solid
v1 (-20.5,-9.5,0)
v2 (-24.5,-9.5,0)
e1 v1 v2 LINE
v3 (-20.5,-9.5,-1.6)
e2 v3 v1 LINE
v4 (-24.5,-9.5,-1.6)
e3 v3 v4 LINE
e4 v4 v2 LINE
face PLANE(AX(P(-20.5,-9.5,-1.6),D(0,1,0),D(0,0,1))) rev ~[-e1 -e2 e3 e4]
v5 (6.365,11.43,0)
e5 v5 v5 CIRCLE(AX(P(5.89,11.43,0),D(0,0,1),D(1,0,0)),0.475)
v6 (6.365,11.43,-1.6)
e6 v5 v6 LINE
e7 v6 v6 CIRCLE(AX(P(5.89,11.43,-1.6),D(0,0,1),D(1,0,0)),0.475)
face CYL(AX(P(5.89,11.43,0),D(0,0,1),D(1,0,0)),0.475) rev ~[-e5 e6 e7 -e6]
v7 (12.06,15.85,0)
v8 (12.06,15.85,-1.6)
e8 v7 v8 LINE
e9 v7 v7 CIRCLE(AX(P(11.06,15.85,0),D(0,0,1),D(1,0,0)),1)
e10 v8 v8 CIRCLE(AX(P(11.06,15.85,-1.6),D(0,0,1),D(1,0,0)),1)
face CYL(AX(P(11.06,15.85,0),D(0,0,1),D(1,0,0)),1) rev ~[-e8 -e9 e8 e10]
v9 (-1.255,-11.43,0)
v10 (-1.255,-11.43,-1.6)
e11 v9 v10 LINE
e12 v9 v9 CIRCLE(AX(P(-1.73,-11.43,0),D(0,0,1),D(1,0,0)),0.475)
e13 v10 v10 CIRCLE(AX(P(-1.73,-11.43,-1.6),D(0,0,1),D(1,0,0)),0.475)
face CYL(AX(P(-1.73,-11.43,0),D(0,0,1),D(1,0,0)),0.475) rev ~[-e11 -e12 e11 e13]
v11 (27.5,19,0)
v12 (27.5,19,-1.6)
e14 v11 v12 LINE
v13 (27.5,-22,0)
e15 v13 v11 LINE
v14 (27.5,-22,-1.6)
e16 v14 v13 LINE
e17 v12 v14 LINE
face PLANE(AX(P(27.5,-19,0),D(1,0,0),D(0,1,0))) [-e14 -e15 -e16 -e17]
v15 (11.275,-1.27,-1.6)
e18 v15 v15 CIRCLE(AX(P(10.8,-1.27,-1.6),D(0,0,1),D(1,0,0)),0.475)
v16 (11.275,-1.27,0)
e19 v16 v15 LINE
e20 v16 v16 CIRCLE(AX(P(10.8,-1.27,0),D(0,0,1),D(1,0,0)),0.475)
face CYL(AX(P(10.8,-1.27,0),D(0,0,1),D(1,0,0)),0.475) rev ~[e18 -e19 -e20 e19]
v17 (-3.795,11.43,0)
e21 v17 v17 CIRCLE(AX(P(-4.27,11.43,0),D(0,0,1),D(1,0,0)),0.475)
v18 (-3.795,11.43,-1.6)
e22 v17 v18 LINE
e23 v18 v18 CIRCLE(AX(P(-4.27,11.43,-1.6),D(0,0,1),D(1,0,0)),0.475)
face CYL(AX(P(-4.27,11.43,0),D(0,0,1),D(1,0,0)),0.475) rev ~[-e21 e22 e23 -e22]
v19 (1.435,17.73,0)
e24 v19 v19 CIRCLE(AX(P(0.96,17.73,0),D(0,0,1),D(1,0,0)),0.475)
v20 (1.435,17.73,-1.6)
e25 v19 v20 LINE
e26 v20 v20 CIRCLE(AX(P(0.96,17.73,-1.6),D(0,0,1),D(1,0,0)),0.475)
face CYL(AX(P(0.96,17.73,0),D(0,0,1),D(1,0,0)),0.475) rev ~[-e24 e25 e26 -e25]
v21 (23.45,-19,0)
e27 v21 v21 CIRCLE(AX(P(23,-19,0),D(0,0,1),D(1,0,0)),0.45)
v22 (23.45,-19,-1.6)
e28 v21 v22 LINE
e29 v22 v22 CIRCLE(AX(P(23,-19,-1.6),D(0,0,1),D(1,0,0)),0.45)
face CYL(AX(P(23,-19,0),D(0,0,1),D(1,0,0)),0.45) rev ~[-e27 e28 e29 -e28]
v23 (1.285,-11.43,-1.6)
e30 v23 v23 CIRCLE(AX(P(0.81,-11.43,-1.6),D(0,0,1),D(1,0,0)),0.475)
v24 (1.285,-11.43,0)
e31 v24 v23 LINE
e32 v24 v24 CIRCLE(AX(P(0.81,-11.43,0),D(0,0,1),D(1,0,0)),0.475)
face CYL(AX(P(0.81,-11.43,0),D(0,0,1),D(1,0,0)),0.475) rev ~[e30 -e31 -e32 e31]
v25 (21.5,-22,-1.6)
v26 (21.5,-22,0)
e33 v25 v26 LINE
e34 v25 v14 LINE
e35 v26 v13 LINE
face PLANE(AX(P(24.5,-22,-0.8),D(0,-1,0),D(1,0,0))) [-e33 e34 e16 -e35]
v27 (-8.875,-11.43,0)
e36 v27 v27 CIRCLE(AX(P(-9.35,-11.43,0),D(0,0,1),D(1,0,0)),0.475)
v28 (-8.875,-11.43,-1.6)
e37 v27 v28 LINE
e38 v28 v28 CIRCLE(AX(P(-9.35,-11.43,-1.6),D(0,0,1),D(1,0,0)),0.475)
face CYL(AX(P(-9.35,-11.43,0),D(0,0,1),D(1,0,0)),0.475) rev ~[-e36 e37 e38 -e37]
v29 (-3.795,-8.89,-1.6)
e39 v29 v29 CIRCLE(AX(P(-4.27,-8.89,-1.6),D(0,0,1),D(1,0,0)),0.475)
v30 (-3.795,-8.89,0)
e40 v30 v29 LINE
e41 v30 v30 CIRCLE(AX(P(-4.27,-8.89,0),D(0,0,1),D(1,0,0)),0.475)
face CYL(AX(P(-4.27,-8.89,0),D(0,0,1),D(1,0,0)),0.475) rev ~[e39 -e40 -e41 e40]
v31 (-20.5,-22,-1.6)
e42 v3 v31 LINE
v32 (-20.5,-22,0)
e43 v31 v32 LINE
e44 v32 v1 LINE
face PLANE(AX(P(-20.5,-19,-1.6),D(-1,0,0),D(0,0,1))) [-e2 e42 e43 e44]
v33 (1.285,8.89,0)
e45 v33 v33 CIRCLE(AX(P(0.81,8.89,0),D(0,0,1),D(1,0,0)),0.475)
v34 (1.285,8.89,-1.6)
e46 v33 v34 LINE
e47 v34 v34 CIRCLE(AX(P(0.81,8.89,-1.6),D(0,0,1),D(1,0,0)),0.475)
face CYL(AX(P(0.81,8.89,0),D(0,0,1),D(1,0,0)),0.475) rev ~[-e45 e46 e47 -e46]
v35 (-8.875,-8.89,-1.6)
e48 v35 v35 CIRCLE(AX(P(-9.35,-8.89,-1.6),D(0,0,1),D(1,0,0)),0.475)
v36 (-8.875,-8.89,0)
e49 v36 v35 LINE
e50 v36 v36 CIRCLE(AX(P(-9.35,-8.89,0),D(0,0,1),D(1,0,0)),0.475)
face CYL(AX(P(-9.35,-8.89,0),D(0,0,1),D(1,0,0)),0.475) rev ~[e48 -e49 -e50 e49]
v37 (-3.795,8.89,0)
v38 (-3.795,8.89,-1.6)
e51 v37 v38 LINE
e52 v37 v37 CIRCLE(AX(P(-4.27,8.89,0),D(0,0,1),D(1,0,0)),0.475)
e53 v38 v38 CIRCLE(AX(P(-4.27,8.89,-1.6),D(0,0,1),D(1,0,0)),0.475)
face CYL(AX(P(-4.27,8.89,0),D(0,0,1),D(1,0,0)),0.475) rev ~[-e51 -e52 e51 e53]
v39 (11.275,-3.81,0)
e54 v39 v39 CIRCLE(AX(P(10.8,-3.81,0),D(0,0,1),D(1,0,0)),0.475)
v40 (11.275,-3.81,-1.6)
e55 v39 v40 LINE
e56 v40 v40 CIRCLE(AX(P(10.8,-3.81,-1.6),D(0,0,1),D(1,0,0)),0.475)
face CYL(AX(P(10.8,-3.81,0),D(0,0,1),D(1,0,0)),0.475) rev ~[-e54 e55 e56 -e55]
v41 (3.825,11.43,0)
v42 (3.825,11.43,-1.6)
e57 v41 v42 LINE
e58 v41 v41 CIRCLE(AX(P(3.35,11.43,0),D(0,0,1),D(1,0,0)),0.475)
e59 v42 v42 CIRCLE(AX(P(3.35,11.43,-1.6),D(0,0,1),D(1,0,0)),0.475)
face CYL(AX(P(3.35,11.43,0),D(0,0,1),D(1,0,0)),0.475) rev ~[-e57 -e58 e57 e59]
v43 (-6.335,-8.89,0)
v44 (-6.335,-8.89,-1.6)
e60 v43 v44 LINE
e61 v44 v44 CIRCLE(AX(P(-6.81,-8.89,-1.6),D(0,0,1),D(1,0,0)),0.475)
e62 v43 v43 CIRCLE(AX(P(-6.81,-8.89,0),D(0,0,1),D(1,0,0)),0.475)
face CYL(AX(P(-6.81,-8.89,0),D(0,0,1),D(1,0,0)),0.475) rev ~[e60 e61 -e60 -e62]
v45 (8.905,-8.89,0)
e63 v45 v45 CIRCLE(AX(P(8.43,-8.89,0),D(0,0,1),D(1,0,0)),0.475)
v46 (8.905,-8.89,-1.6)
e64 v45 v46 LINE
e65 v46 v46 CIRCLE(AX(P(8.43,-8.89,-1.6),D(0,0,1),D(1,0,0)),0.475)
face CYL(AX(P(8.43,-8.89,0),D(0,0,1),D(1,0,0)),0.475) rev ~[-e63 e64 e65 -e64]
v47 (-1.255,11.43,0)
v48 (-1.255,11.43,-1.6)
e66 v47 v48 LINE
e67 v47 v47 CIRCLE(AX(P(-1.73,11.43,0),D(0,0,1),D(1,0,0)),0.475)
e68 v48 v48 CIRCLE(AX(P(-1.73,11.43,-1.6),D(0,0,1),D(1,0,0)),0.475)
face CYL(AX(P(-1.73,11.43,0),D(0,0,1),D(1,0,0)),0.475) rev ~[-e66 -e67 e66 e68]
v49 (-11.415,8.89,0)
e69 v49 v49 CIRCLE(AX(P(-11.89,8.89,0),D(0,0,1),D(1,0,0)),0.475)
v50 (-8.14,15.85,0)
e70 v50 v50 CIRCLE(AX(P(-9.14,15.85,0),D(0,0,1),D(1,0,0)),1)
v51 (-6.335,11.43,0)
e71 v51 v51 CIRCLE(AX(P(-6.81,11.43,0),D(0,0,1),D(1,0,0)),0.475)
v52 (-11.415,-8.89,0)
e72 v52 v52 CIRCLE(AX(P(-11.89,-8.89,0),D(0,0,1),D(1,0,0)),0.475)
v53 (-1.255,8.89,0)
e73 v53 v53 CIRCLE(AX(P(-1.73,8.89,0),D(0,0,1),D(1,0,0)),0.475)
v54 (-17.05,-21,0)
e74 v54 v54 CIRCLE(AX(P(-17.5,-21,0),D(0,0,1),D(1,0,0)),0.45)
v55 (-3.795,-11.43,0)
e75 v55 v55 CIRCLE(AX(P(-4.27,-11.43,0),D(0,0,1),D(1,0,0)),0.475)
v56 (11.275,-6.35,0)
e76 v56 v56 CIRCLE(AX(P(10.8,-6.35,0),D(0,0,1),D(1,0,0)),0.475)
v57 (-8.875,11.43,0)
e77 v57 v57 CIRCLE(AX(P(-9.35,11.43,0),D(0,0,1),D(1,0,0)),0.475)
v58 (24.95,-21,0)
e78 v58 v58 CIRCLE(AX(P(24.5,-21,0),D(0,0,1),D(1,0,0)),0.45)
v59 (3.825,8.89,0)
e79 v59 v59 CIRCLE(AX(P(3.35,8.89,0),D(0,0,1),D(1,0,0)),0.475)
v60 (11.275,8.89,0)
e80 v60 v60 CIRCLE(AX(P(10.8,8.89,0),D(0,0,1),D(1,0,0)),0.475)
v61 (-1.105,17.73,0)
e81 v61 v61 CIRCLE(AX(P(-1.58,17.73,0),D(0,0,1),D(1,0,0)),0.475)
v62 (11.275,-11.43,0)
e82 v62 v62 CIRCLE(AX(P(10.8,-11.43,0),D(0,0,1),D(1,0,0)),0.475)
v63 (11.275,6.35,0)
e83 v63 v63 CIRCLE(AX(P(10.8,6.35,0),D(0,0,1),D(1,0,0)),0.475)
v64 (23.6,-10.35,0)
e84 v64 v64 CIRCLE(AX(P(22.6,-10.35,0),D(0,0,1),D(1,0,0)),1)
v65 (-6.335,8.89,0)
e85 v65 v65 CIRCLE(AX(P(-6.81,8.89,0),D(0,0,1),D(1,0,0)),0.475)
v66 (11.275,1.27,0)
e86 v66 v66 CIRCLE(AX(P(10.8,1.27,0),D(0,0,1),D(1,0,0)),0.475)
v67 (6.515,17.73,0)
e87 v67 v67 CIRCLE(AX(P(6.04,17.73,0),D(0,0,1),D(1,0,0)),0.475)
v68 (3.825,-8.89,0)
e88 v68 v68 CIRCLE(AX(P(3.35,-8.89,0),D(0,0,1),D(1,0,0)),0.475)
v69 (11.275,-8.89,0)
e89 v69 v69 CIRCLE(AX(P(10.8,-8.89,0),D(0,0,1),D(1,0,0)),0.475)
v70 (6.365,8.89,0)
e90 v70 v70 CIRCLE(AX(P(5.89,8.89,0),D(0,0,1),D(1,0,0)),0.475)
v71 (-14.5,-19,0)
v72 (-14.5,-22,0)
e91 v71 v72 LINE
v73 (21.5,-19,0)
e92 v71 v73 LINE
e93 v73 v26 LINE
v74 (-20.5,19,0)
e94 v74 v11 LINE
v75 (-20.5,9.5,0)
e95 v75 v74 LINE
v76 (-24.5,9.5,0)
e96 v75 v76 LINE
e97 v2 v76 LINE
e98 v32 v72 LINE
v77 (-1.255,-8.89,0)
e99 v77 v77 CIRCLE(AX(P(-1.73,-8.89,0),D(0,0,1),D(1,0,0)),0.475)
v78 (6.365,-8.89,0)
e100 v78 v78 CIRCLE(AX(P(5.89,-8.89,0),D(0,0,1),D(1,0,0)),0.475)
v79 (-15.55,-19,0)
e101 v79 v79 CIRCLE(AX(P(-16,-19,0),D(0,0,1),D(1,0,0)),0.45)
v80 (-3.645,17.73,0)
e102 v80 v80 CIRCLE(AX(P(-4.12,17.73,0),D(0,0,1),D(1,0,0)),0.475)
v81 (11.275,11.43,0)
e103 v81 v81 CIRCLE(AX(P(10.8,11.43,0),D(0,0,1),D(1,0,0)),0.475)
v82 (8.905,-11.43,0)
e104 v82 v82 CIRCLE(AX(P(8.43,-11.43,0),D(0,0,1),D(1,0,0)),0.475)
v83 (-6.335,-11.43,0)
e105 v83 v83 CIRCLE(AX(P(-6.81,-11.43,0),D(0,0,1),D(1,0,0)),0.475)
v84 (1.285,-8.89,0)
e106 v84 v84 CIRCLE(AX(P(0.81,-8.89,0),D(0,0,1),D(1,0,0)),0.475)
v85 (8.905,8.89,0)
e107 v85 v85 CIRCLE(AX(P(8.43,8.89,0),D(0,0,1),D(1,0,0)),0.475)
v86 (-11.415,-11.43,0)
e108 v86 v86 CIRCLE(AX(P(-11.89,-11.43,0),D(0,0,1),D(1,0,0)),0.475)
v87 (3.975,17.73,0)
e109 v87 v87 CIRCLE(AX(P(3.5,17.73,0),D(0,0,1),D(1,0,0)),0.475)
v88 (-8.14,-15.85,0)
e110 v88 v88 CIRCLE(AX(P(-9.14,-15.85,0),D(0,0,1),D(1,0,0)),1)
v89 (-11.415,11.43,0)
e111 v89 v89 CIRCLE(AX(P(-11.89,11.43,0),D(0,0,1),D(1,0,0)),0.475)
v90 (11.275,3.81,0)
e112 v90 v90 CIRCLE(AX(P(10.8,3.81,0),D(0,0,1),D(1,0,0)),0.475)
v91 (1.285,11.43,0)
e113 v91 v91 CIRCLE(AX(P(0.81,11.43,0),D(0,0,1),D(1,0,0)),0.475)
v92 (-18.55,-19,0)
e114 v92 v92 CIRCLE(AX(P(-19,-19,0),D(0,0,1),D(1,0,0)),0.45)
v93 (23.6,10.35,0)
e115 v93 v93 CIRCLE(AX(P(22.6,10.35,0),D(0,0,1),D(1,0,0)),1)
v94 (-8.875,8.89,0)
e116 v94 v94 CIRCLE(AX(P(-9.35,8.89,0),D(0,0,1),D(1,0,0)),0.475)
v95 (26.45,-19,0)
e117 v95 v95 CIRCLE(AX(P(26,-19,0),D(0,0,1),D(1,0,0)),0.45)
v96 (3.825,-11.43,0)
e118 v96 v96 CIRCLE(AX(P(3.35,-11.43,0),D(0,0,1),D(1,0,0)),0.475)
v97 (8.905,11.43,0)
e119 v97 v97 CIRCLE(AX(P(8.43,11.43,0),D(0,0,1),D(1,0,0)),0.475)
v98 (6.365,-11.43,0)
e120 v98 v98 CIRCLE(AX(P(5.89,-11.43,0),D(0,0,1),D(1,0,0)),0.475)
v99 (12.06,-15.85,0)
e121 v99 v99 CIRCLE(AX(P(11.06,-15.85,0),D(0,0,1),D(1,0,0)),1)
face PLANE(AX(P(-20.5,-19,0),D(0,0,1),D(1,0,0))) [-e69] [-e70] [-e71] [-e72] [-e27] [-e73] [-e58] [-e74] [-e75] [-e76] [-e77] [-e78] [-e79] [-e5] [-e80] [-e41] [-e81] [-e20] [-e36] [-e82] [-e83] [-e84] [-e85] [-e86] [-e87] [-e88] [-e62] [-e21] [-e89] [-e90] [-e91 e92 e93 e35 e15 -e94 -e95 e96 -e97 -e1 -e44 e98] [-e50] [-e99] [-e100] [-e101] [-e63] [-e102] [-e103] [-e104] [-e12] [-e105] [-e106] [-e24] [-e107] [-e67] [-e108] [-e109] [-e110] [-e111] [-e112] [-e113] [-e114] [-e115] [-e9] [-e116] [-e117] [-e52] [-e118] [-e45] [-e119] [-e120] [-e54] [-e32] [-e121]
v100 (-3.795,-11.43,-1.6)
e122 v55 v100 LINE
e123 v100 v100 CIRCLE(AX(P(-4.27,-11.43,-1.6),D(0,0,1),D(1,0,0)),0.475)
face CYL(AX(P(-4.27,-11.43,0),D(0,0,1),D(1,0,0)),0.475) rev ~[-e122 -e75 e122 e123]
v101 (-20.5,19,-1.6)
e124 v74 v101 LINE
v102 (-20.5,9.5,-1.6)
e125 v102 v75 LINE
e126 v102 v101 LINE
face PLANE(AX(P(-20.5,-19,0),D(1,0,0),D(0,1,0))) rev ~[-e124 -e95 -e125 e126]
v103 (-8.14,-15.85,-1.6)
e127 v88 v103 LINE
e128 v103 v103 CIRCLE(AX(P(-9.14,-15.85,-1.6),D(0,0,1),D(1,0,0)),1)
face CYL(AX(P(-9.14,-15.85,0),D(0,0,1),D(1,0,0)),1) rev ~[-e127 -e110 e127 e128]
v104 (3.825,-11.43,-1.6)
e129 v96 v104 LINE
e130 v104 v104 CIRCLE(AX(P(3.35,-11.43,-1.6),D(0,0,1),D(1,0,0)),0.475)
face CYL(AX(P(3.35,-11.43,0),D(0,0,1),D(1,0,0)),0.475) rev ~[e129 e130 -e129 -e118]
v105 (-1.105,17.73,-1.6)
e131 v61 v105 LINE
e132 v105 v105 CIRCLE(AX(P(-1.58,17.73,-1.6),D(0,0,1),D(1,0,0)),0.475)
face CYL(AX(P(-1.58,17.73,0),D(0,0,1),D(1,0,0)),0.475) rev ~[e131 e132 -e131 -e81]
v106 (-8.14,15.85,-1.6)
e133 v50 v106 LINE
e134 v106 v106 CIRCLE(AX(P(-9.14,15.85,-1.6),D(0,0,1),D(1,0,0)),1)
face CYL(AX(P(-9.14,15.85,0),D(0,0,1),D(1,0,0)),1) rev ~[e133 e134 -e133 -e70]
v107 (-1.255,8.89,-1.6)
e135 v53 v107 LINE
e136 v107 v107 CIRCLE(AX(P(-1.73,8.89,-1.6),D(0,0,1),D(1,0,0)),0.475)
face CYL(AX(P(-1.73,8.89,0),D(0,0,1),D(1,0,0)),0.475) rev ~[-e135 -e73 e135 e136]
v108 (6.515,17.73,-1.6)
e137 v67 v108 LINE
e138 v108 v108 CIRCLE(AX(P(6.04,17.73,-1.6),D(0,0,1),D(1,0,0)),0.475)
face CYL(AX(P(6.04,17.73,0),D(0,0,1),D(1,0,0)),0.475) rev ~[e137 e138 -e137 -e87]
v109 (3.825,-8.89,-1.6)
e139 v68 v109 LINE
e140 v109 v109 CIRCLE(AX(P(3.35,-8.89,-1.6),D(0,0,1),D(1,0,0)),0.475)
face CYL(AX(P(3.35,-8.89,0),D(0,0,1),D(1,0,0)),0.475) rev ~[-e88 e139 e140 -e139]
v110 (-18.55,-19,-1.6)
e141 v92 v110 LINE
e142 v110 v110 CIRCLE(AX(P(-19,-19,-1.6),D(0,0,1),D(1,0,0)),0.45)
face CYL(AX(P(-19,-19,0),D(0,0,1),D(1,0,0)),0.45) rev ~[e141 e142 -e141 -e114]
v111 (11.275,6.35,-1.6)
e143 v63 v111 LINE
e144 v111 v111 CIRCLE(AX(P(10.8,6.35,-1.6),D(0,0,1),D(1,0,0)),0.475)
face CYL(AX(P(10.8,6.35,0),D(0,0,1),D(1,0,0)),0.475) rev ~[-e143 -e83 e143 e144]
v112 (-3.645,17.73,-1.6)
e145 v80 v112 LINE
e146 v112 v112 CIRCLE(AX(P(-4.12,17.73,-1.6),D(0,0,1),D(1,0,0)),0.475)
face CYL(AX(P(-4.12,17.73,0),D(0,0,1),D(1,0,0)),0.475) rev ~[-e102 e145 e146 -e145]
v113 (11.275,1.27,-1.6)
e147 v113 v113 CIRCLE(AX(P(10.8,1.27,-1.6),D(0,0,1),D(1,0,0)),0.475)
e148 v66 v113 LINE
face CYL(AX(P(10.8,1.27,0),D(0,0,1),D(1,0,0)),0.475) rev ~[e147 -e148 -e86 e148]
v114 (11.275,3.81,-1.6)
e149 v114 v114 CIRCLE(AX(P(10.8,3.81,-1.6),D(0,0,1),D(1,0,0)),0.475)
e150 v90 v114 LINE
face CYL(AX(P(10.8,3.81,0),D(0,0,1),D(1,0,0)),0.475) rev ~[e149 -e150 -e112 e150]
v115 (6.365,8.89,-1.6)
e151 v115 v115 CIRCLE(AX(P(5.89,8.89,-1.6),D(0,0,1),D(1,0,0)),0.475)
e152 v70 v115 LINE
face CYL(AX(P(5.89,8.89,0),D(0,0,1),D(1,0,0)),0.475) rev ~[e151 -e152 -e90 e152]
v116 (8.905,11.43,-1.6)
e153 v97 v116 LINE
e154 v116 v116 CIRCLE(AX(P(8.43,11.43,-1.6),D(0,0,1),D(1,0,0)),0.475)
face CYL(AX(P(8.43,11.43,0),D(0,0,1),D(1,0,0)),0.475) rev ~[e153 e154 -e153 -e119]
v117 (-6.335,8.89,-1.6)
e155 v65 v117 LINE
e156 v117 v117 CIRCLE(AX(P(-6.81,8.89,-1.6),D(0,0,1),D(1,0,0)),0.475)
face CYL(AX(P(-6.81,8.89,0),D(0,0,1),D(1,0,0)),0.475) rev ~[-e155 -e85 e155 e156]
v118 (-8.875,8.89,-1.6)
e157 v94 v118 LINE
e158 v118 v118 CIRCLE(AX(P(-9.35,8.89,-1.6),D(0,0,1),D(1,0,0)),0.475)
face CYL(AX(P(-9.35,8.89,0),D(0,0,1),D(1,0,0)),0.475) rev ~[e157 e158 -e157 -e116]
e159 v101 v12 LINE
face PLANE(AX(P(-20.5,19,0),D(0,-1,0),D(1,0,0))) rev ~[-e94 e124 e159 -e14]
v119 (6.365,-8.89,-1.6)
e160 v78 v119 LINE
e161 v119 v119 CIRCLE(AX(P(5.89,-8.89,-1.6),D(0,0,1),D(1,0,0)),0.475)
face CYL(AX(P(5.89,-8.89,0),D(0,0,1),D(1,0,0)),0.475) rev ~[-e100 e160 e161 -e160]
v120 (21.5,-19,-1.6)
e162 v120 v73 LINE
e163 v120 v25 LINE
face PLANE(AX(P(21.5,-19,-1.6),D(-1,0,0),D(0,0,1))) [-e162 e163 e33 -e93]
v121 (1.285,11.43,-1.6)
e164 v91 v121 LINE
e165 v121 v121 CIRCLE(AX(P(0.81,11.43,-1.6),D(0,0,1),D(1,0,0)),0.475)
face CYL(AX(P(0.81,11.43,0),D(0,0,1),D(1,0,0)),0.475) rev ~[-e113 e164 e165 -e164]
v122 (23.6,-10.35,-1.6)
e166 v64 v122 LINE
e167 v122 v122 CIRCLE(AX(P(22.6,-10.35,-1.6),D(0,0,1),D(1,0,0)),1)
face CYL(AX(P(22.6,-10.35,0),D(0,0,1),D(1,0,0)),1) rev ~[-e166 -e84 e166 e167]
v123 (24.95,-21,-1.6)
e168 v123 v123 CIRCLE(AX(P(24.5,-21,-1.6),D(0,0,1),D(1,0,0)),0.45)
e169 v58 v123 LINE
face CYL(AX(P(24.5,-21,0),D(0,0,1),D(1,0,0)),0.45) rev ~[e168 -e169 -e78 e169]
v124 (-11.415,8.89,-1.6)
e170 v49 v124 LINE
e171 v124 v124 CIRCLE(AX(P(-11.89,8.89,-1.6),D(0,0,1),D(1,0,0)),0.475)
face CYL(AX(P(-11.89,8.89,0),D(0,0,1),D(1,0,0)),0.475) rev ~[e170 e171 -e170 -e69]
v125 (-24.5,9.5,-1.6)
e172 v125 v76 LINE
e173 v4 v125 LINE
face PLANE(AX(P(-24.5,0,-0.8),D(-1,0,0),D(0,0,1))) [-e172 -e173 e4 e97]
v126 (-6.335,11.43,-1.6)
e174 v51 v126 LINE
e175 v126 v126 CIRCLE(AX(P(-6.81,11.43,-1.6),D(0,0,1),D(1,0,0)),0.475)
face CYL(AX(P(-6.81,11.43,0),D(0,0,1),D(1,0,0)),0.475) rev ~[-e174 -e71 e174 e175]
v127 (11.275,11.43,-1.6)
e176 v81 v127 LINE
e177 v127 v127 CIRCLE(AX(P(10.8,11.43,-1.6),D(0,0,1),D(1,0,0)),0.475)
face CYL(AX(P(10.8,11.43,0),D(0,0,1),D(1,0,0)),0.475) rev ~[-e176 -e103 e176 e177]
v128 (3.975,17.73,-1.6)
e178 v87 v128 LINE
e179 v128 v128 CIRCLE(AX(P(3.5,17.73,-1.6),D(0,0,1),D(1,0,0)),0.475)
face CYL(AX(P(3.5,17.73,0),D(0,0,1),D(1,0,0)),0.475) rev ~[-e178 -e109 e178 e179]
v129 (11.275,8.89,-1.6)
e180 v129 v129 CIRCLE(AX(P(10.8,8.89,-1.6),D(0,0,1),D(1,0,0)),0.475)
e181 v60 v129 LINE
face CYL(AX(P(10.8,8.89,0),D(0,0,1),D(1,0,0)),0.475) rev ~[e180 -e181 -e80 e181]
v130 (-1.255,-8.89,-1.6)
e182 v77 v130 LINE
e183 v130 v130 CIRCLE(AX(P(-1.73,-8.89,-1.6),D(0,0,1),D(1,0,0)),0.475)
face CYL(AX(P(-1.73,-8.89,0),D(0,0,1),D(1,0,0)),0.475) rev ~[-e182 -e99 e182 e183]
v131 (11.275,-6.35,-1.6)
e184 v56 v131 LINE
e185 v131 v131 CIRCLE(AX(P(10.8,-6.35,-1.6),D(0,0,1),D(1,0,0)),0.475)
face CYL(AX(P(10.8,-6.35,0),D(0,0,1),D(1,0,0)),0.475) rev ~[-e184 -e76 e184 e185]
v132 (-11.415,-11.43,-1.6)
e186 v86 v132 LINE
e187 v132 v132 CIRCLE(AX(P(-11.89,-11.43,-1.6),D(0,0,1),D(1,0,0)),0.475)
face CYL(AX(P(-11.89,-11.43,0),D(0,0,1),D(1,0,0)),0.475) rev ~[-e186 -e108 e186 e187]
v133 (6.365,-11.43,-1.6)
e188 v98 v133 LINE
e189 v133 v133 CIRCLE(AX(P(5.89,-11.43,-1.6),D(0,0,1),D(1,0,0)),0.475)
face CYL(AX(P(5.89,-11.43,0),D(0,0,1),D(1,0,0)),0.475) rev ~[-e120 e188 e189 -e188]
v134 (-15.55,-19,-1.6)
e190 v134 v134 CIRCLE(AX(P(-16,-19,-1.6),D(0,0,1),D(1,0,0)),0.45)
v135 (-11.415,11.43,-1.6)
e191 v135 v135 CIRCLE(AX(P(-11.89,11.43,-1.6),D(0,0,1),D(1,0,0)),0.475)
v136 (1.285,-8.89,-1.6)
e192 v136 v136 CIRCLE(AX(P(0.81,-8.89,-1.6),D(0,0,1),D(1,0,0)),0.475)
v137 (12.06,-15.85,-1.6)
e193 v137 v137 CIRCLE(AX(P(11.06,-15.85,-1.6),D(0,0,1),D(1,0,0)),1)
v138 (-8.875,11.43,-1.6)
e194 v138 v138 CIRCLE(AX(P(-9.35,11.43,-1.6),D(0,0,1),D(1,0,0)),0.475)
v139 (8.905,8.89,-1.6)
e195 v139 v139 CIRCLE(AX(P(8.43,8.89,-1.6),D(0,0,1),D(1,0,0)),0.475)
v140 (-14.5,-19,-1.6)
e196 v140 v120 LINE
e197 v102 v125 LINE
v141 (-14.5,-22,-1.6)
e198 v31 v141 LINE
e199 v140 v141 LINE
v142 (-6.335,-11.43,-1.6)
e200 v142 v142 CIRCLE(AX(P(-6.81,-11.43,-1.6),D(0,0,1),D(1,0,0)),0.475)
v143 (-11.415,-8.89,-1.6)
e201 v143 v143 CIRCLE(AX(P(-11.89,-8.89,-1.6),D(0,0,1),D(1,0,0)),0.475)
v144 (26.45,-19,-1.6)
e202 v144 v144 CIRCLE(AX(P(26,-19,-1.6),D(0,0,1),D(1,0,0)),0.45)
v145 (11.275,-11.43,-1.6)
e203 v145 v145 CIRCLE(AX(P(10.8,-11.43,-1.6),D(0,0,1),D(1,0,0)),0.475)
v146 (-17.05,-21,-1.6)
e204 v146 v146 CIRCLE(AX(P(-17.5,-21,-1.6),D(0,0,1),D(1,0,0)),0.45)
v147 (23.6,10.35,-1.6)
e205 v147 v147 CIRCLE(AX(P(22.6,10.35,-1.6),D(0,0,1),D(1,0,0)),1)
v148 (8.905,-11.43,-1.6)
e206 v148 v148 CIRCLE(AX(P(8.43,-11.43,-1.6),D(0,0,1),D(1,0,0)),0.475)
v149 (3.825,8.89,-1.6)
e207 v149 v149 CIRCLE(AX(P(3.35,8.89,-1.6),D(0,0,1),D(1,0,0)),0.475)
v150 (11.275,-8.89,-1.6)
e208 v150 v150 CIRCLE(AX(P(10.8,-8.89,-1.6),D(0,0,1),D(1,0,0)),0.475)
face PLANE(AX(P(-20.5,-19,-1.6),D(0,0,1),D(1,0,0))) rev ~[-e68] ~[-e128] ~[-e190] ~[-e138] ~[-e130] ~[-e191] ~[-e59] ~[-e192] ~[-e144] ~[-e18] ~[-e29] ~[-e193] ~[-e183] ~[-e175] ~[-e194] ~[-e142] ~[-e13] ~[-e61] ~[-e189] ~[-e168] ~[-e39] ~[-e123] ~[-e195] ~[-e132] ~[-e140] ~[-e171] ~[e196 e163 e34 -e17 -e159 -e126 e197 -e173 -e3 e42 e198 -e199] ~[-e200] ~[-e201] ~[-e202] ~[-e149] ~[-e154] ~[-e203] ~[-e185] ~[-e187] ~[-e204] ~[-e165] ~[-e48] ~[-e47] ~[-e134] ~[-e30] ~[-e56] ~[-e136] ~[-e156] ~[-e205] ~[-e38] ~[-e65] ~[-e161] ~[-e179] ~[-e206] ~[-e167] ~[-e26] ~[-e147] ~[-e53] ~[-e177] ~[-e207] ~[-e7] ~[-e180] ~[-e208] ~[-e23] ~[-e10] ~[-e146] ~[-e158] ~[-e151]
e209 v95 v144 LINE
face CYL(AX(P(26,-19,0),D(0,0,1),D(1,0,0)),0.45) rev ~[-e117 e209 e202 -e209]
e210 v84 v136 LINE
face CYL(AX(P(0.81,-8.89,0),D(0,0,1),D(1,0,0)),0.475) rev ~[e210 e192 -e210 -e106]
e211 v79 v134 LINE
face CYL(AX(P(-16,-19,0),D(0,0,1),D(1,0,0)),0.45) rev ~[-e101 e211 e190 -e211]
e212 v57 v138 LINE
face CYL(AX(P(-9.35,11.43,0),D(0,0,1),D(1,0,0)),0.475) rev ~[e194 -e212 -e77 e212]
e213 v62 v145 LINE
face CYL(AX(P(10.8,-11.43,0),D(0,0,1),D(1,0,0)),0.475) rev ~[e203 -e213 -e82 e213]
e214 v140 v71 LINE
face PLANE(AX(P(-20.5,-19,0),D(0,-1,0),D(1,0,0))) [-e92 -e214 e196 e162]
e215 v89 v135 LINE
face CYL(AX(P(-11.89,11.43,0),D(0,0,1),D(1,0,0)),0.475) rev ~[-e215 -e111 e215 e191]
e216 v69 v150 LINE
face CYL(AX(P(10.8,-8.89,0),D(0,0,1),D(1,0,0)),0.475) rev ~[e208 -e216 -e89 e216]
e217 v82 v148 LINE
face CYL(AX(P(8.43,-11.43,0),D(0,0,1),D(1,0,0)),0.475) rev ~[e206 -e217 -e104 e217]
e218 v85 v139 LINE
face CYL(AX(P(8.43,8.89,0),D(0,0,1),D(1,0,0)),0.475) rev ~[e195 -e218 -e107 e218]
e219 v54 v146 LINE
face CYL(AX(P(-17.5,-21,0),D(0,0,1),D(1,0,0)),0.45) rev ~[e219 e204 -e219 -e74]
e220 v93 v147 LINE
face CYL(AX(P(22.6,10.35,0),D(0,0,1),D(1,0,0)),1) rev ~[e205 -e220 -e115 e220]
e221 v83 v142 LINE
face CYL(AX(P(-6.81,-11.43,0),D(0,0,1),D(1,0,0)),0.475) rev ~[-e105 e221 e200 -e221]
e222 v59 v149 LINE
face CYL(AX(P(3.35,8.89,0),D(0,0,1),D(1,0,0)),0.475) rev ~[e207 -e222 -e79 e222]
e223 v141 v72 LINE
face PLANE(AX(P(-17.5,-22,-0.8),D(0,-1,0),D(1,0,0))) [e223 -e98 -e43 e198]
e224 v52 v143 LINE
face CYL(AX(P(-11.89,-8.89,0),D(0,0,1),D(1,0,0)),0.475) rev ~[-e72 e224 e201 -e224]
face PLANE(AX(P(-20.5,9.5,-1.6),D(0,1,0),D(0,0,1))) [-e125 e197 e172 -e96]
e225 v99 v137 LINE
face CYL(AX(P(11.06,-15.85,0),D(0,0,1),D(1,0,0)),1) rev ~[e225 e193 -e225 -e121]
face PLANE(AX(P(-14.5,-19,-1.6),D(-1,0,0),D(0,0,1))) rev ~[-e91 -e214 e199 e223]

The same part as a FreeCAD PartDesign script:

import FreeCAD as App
import Part
import Sketcher
from FreeCAD import Vector


def add_polygon(sketch, points):
    """Adds a closed chain of lines whose ends are joined by coincident constraints."""
    first, n = sketch.GeometryCount, len(points)
    for a, b in zip(points, points[1:] + points[:1]):
        sketch.addGeometry(Part.LineSegment(App.Vector(*a, 0), App.Vector(*b, 0)), False)
    for i in range(n):
        sketch.addConstraint(Sketcher.Constraint("Coincident", first + i, 2, first + (i + 1) % n, 1))

doc = App.newDocument("Part")
body = doc.addObject("PartDesign::Body", "Body")

# Sketch on XY plane
sketch1 = body.newObject("Sketcher::SketchObject", "Sketch")
sketch1.AttachmentSupport = (doc.getObject("XY_Plane"), [""])
sketch1.MapMode = "FlatFace"
add_polygon(sketch1, [(-20, 19), (-20, -19), (28, -19), (28, 19)])  # lines 0-3
sketch1.addConstraint(Sketcher.Constraint("Vertical", 0))
sketch1.addConstraint(Sketcher.Constraint("Horizontal", 1))
sketch1.addConstraint(Sketcher.Constraint("Vertical", 2))
sketch1.addConstraint(Sketcher.Constraint("Horizontal", 3))
sketch1.addConstraint(Sketcher.Constraint("DistanceX", 1, 1, 1, 2, 48.0))
sketch1.addConstraint(Sketcher.Constraint("DistanceY", 0, 2, 0, 1, 38.0))
sketch1.addConstraint(Sketcher.Constraint("DistanceY", 0, 2, -1, 1, 19.0))
sketch1.addConstraint(Sketcher.Constraint("DistanceX", 0, 2, -1, 1, 20.5))
pad1 = body.newObject("PartDesign::Pad", "Pad")
pad1.Profile = sketch1
pad1.Length = 1.6
pad1.Reversed = True

# Sketch on XY plane
sketch2 = body.newObject("Sketcher::SketchObject", "Sketch001")
sketch2.AttachmentSupport = (doc.getObject("XY_Plane"), [""])
sketch2.MapMode = "FlatFace"
sketch2.addGeometry(Part.Circle(Vector(-9.14, 15.85, 0), Vector(0, 0, 1), 1), False)
sketch2.addGeometry(Part.Circle(Vector(11.06, 15.85, 0), Vector(0, 0, 1), 1), False)
sketch2.addGeometry(Part.Circle(Vector(22.6, 10.35, 0), Vector(0, 0, 1), 1), False)
sketch2.addGeometry(Part.Circle(Vector(22.6, -10.35, 0), Vector(0, 0, 1), 1), False)
sketch2.addGeometry(Part.Circle(Vector(-11.89, 8.89, 0), Vector(0, 0, 1), 0.47), False)
sketch2.addGeometry(Part.Circle(Vector(-9.35, 8.89, 0), Vector(0, 0, 1), 0.47), False)
sketch2.addGeometry(Part.Circle(Vector(-6.81, 8.89, 0), Vector(0, 0, 1), 0.47), False)
sketch2.addGeometry(Part.Circle(Vector(-4.27, 8.89, 0), Vector(0, 0, 1), 0.47), False)
sketch2.addGeometry(Part.Circle(Vector(-11.89, 11.43, 0), Vector(0, 0, 1), 0.47), False)
sketch2.addGeometry(Part.Circle(Vector(-9.35, 11.43, 0), Vector(0, 0, 1), 0.47), False)
sketch2.addGeometry(Part.Circle(Vector(-6.81, 11.43, 0), Vector(0, 0, 1), 0.47), False)
sketch2.addGeometry(Part.Circle(Vector(-4.27, 11.43, 0), Vector(0, 0, 1), 0.47), False)
sketch2.addGeometry(Part.Circle(Vector(-1.73, 11.43, 0), Vector(0, 0, 1), 0.47), False)
sketch2.addGeometry(Part.Circle(Vector(0.81, 11.43, 0), Vector(0, 0, 1), 0.47), False)
sketch2.addGeometry(Part.Circle(Vector(3.35, 11.43, 0), Vector(0, 0, 1), 0.47), False)
sketch2.addGeometry(Part.Circle(Vector(-1.73, 8.89, 0), Vector(0, 0, 1), 0.47), False)
sketch2.addGeometry(Part.Circle(Vector(0.81, 8.89, 0), Vector(0, 0, 1), 0.47), False)
sketch2.addGeometry(Part.Circle(Vector(3.35, 8.89, 0), Vector(0, 0, 1), 0.47), False)
sketch2.addGeometry(Part.Circle(Vector(5.89, 8.89, 0), Vector(0, 0, 1), 0.47), False)
sketch2.addGeometry(Part.Circle(Vector(8.43, 8.89, 0), Vector(0, 0, 1), 0.47), False)
sketch2.addGeometry(Part.Circle(Vector(5.89, 11.43, 0), Vector(0, 0, 1), 0.47), False)
sketch2.addGeometry(Part.Circle(Vector(8.43, 11.43, 0), Vector(0, 0, 1), 0.47), False)
sketch2.addGeometry(Part.Circle(Vector(10.8, 11.43, 0), Vector(0, 0, 1), 0.47), False)
sketch2.addGeometry(Part.Circle(Vector(10.8, 8.89, 0), Vector(0, 0, 1), 0.47), False)
sketch2.addGeometry(Part.Circle(Vector(10.8, 6.35, 0), Vector(0, 0, 1), 0.47), False)
sketch2.addGeometry(Part.Circle(Vector(10.8, 3.81, 0), Vector(0, 0, 1), 0.47), False)
sketch2.addGeometry(Part.Circle(Vector(10.8, 1.27, 0), Vector(0, 0, 1), 0.47), False)
sketch2.addGeometry(Part.Circle(Vector(10.8, -1.27, 0), Vector(0, 0, 1), 0.47), False)
sketch2.addGeometry(Part.Circle(Vector(10.8, -3.81, 0), Vector(0, 0, 1), 0.47), False)
sketch2.addGeometry(Part.Circle(Vector(10.8, -6.35, 0), Vector(0, 0, 1), 0.47), False)
sketch2.addGeometry(Part.Circle(Vector(-11.89, -8.89, 0), Vector(0, 0, 1), 0.47), False)
sketch2.addGeometry(Part.Circle(Vector(-9.35, -8.89, 0), Vector(0, 0, 1), 0.47), False)
sketch2.addGeometry(Part.Circle(Vector(-6.81, -8.89, 0), Vector(0, 0, 1), 0.47), False)
sketch2.addGeometry(Part.Circle(Vector(-4.27, -8.89, 0), Vector(0, 0, 1), 0.47), False)
sketch2.addGeometry(Part.Circle(Vector(-1.73, -8.89, 0), Vector(0, 0, 1), 0.47), False)
sketch2.addGeometry(Part.Circle(Vector(0.81, -8.89, 0), Vector(0, 0, 1), 0.47), False)
sketch2.addGeometry(Part.Circle(Vector(3.35, -8.89, 0), Vector(0, 0, 1), 0.47), False)
sketch2.addGeometry(Part.Circle(Vector(5.89, -8.89, 0), Vector(0, 0, 1), 0.47), False)
sketch2.addGeometry(Part.Circle(Vector(8.43, -8.89, 0), Vector(0, 0, 1), 0.47), False)
sketch2.addGeometry(Part.Circle(Vector(10.8, -8.89, 0), Vector(0, 0, 1), 0.47), False)
sketch2.addGeometry(Part.Circle(Vector(-11.89, -11.43, 0), Vector(0, 0, 1), 0.47), False)
sketch2.addGeometry(Part.Circle(Vector(-9.35, -11.43, 0), Vector(0, 0, 1), 0.47), False)
sketch2.addGeometry(Part.Circle(Vector(-6.81, -11.43, 0), Vector(0, 0, 1), 0.47), False)
sketch2.addGeometry(Part.Circle(Vector(-4.27, -11.43, 0), Vector(0, 0, 1), 0.47), False)
sketch2.addGeometry(Part.Circle(Vector(-1.73, -11.43, 0), Vector(0, 0, 1), 0.47), False)
sketch2.addGeometry(Part.Circle(Vector(0.81, -11.43, 0), Vector(0, 0, 1), 0.47), False)
sketch2.addGeometry(Part.Circle(Vector(3.35, -11.43, 0), Vector(0, 0, 1), 0.47), False)
sketch2.addGeometry(Part.Circle(Vector(5.89, -11.43, 0), Vector(0, 0, 1), 0.47), False)
sketch2.addGeometry(Part.Circle(Vector(8.43, -11.43, 0), Vector(0, 0, 1), 0.47), False)
sketch2.addGeometry(Part.Circle(Vector(10.8, -11.43, 0), Vector(0, 0, 1), 0.47), False)
sketch2.addGeometry(Part.Circle(Vector(3.5, 17.73, 0), Vector(0, 0, 1), 0.47), False)
sketch2.addGeometry(Part.Circle(Vector(6.04, 17.73, 0), Vector(0, 0, 1), 0.47), False)
sketch2.addGeometry(Part.Circle(Vector(0.96, 17.73, 0), Vector(0, 0, 1), 0.47), False)
sketch2.addGeometry(Part.Circle(Vector(-4.12, 17.73, 0), Vector(0, 0, 1), 0.47), False)
sketch2.addGeometry(Part.Circle(Vector(-1.58, 17.73, 0), Vector(0, 0, 1), 0.47), False)
sketch2.addGeometry(Part.Circle(Vector(11.06, -15.85, 0), Vector(0, 0, 1), 1), False)
sketch2.addGeometry(Part.Circle(Vector(-9.14, -15.85, 0), Vector(0, 0, 1), 1), False)
sketch2.addConstraint(Sketcher.Constraint("Equal", 0, 1))
sketch2.addConstraint(Sketcher.Constraint("Equal", 1, 2))
sketch2.addConstraint(Sketcher.Constraint("Equal", 2, 3))
sketch2.addConstraint(Sketcher.Constraint("Equal", 4, 5))
sketch2.addConstraint(Sketcher.Constraint("Equal", 5, 6))
sketch2.addConstraint(Sketcher.Constraint("Equal", 6, 7))
sketch2.addConstraint(Sketcher.Constraint("Equal", 7, 8))
sketch2.addConstraint(Sketcher.Constraint("Equal", 8, 9))
sketch2.addConstraint(Sketcher.Constraint("Equal", 9, 10))
sketch2.addConstraint(Sketcher.Constraint("Equal", 10, 11))
sketch2.addConstraint(Sketcher.Constraint("Equal", 11, 12))
sketch2.addConstraint(Sketcher.Constraint("Equal", 12, 13))
sketch2.addConstraint(Sketcher.Constraint("Equal", 13, 14))
sketch2.addConstraint(Sketcher.Constraint("Equal", 14, 15))
sketch2.addConstraint(Sketcher.Constraint("Equal", 15, 16))
sketch2.addConstraint(Sketcher.Constraint("Equal", 16, 17))
sketch2.addConstraint(Sketcher.Constraint("Equal", 17, 18))
sketch2.addConstraint(Sketcher.Constraint("Equal", 18, 19))
sketch2.addConstraint(Sketcher.Constraint("Equal", 19, 20))
sketch2.addConstraint(Sketcher.Constraint("Equal", 20, 21))
sketch2.addConstraint(Sketcher.Constraint("Equal", 21, 22))
sketch2.addConstraint(Sketcher.Constraint("Equal", 22, 23))
sketch2.addConstraint(Sketcher.Constraint("Equal", 23, 24))
sketch2.addConstraint(Sketcher.Constraint("Equal", 24, 25))
sketch2.addConstraint(Sketcher.Constraint("Equal", 25, 26))
sketch2.addConstraint(Sketcher.Constraint("Equal", 26, 27))
sketch2.addConstraint(Sketcher.Constraint("Equal", 27, 28))
sketch2.addConstraint(Sketcher.Constraint("Equal", 28, 29))
sketch2.addConstraint(Sketcher.Constraint("Equal", 29, 30))
sketch2.addConstraint(Sketcher.Constraint("Equal", 30, 31))
sketch2.addConstraint(Sketcher.Constraint("Equal", 31, 32))
sketch2.addConstraint(Sketcher.Constraint("Equal", 32, 33))
sketch2.addConstraint(Sketcher.Constraint("Equal", 33, 34))
sketch2.addConstraint(Sketcher.Constraint("Equal", 34, 35))
sketch2.addConstraint(Sketcher.Constraint("Equal", 35, 36))
sketch2.addConstraint(Sketcher.Constraint("Equal", 36, 37))
sketch2.addConstraint(Sketcher.Constraint("Equal", 37, 38))
sketch2.addConstraint(Sketcher.Constraint("Equal", 38, 39))
sketch2.addConstraint(Sketcher.Constraint("Equal", 39, 40))
sketch2.addConstraint(Sketcher.Constraint("Equal", 40, 41))
sketch2.addConstraint(Sketcher.Constraint("Equal", 41, 42))
sketch2.addConstraint(Sketcher.Constraint("Equal", 42, 43))
sketch2.addConstraint(Sketcher.Constraint("Equal", 43, 44))
sketch2.addConstraint(Sketcher.Constraint("Equal", 44, 45))
sketch2.addConstraint(Sketcher.Constraint("Equal", 45, 46))
sketch2.addConstraint(Sketcher.Constraint("Equal", 46, 47))
sketch2.addConstraint(Sketcher.Constraint("Equal", 47, 48))
sketch2.addConstraint(Sketcher.Constraint("Equal", 48, 49))
sketch2.addConstraint(Sketcher.Constraint("Equal", 49, 50))
sketch2.addConstraint(Sketcher.Constraint("Equal", 50, 51))
sketch2.addConstraint(Sketcher.Constraint("Equal", 51, 52))
sketch2.addConstraint(Sketcher.Constraint("Equal", 52, 53))
sketch2.addConstraint(Sketcher.Constraint("Equal", 53, 54))
sketch2.addConstraint(Sketcher.Constraint("Equal", 3, 55))
sketch2.addConstraint(Sketcher.Constraint("Equal", 55, 56))
sketch2.addConstraint(Sketcher.Constraint("Symmetric", 2, 3, 3, 3, -1))
sketch2.addConstraint(Sketcher.Constraint("Symmetric", 26, 3, 27, 3, -1))
sketch2.addConstraint(Sketcher.Constraint("Symmetric", 25, 3, 28, 3, -1))
sketch2.addConstraint(Sketcher.Constraint("Symmetric", 24, 3, 29, 3, -1))
sketch2.addConstraint(Sketcher.Constraint("Symmetric", 4, 3, 30, 3, -1))
sketch2.addConstraint(Sketcher.Constraint("Symmetric", 5, 3, 31, 3, -1))
sketch2.addConstraint(Sketcher.Constraint("Symmetric", 6, 3, 32, 3, -1))
sketch2.addConstraint(Sketcher.Constraint("Symmetric", 7, 3, 33, 3, -1))
sketch2.addConstraint(Sketcher.Constraint("Symmetric", 15, 3, 34, 3, -1))
sketch2.addConstraint(Sketcher.Constraint("Symmetric", 16, 3, 35, 3, -1))
sketch2.addConstraint(Sketcher.Constraint("Symmetric", 17, 3, 36, 3, -1))
sketch2.addConstraint(Sketcher.Constraint("Symmetric", 18, 3, 37, 3, -1))
sketch2.addConstraint(Sketcher.Constraint("Symmetric", 19, 3, 38, 3, -1))
sketch2.addConstraint(Sketcher.Constraint("Symmetric", 23, 3, 39, 3, -1))
sketch2.addConstraint(Sketcher.Constraint("Symmetric", 8, 3, 40, 3, -1))
sketch2.addConstraint(Sketcher.Constraint("Symmetric", 9, 3, 41, 3, -1))
sketch2.addConstraint(Sketcher.Constraint("Symmetric", 10, 3, 42, 3, -1))
sketch2.addConstraint(Sketcher.Constraint("Symmetric", 11, 3, 43, 3, -1))
sketch2.addConstraint(Sketcher.Constraint("Symmetric", 12, 3, 44, 3, -1))
sketch2.addConstraint(Sketcher.Constraint("Symmetric", 13, 3, 45, 3, -1))
sketch2.addConstraint(Sketcher.Constraint("Symmetric", 14, 3, 46, 3, -1))
sketch2.addConstraint(Sketcher.Constraint("Symmetric", 20, 3, 47, 3, -1))
sketch2.addConstraint(Sketcher.Constraint("Symmetric", 21, 3, 48, 3, -1))
sketch2.addConstraint(Sketcher.Constraint("Symmetric", 22, 3, 49, 3, -1))
sketch2.addConstraint(Sketcher.Constraint("Symmetric", 1, 3, 55, 3, -1))
sketch2.addConstraint(Sketcher.Constraint("Symmetric", 0, 3, 56, 3, -1))
sketch2.addConstraint(Sketcher.Constraint("Horizontal", 0, 3, 1, 3))
sketch2.addConstraint(Sketcher.Constraint("Horizontal", 4, 3, 5, 3))
sketch2.addConstraint(Sketcher.Constraint("Horizontal", 5, 3, 6, 3))
sketch2.addConstraint(Sketcher.Constraint("Horizontal", 6, 3, 7, 3))
sketch2.addConstraint(Sketcher.Constraint("Horizontal", 8, 3, 9, 3))
sketch2.addConstraint(Sketcher.Constraint("Horizontal", 9, 3, 10, 3))
sketch2.addConstraint(Sketcher.Constraint("Horizontal", 10, 3, 11, 3))
sketch2.addConstraint(Sketcher.Constraint("Horizontal", 11, 3, 12, 3))
sketch2.addConstraint(Sketcher.Constraint("Horizontal", 12, 3, 13, 3))
sketch2.addConstraint(Sketcher.Constraint("Horizontal", 13, 3, 14, 3))
sketch2.addConstraint(Sketcher.Constraint("Horizontal", 7, 3, 15, 3))
sketch2.addConstraint(Sketcher.Constraint("Horizontal", 15, 3, 16, 3))
sketch2.addConstraint(Sketcher.Constraint("Horizontal", 16, 3, 17, 3))
sketch2.addConstraint(Sketcher.Constraint("Horizontal", 17, 3, 18, 3))
sketch2.addConstraint(Sketcher.Constraint("Horizontal", 18, 3, 19, 3))
sketch2.addConstraint(Sketcher.Constraint("Horizontal", 14, 3, 20, 3))
sketch2.addConstraint(Sketcher.Constraint("Horizontal", 20, 3, 21, 3))
sketch2.addConstraint(Sketcher.Constraint("Horizontal", 21, 3, 22, 3))
sketch2.addConstraint(Sketcher.Constraint("Horizontal", 19, 3, 23, 3))
sketch2.addConstraint(Sketcher.Constraint("Horizontal", 50, 3, 51, 3))
sketch2.addConstraint(Sketcher.Constraint("Horizontal", 51, 3, 52, 3))
sketch2.addConstraint(Sketcher.Constraint("Horizontal", 52, 3, 53, 3))
sketch2.addConstraint(Sketcher.Constraint("Horizontal", 53, 3, 54, 3))
sketch2.addConstraint(Sketcher.Constraint("Vertical", 4, 3, 8, 3))
sketch2.addConstraint(Sketcher.Constraint("Vertical", 5, 3, 9, 3))
sketch2.addConstraint(Sketcher.Constraint("Vertical", 6, 3, 10, 3))
sketch2.addConstraint(Sketcher.Constraint("Vertical", 7, 3, 11, 3))
sketch2.addConstraint(Sketcher.Constraint("Vertical", 12, 3, 15, 3))
sketch2.addConstraint(Sketcher.Constraint("Vertical", 13, 3, 16, 3))
sketch2.addConstraint(Sketcher.Constraint("Vertical", 14, 3, 17, 3))
sketch2.addConstraint(Sketcher.Constraint("Vertical", 18, 3, 20, 3))
sketch2.addConstraint(Sketcher.Constraint("Vertical", 19, 3, 21, 3))
sketch2.addConstraint(Sketcher.Constraint("Vertical", 22, 3, 23, 3))
sketch2.addConstraint(Sketcher.Constraint("Vertical", 23, 3, 24, 3))
sketch2.addConstraint(Sketcher.Constraint("Vertical", 24, 3, 25, 3))
sketch2.addConstraint(Sketcher.Constraint("Vertical", 25, 3, 26, 3))
sketch2.addConstraint(Sketcher.Constraint("Diameter", 0, 2.0))
sketch2.addConstraint(Sketcher.Constraint("Diameter", 4, 0.95))
sketch2.addConstraint(Sketcher.Constraint("DistanceY", 3, 3, 29, 3, 4.0))
sketch2.addConstraint(Sketcher.Constraint("DistanceX", -1, 1, 2, 3, 22.6))
sketch2.addConstraint(Sketcher.Constraint("DistanceX", -1, 1, 22, 3, 10.8))
sketch2.addConstraint(Sketcher.Constraint("DistanceX", -1, 1, 50, 3, 3.5))
sketch2.addConstraint(Sketcher.Constraint("DistanceX", 0, 3, 1, 3, 20.2))
sketch2.addConstraint(Sketcher.Constraint("DistanceY", 2, 3, 1, 3, 5.5))
sketch2.addConstraint(Sketcher.Constraint("DistanceY", 3, 3, 2, 3, 20.7))
sketch2.addConstraint(Sketcher.Constraint("DistanceY", 28, 3, 23, 3, 12.7))
sketch2.addConstraint(Sketcher.Constraint("DistanceY", 14, 3, 50, 3, 6.3))
sketch2.addConstraint(Sketcher.Constraint("DistanceX", 0, 3, -1, 1, 9.14))
sketch2.addConstraint(Sketcher.Constraint("DistanceX", 4, 3, -1, 1, 11.89))
sketch2.addConstraint(Sketcher.Constraint("DistanceY", -1, 1, 4, 3, 8.89))
sketch2.addConstraint(Sketcher.Constraint("DistanceX", 5, 3, -1, 1, 9.35))
sketch2.addConstraint(Sketcher.Constraint("DistanceX", 6, 3, -1, 1, 6.81))
sketch2.addConstraint(Sketcher.Constraint("DistanceX", 7, 3, -1, 1, 4.27))
sketch2.addConstraint(Sketcher.Constraint("DistanceY", -1, 1, 8, 3, 11.43))
sketch2.addConstraint(Sketcher.Constraint("DistanceX", 12, 3, -1, 1, 1.73))
sketch2.addConstraint(Sketcher.Constraint("DistanceX", -1, 1, 13, 3, 0.81))
sketch2.addConstraint(Sketcher.Constraint("DistanceX", -1, 1, 14, 3, 3.35))
sketch2.addConstraint(Sketcher.Constraint("DistanceX", -1, 1, 18, 3, 5.89))
sketch2.addConstraint(Sketcher.Constraint("DistanceX", -1, 1, 19, 3, 8.43))
sketch2.addConstraint(Sketcher.Constraint("DistanceY", -1, 1, 26, 3, 1.27))
sketch2.addConstraint(Sketcher.Constraint("DistanceX", -1, 1, 51, 3, 6.04))
sketch2.addConstraint(Sketcher.Constraint("DistanceX", -1, 1, 52, 3, 0.96))
sketch2.addConstraint(Sketcher.Constraint("DistanceX", 53, 3, -1, 1, 4.12))
sketch2.addConstraint(Sketcher.Constraint("DistanceX", 54, 3, -1, 1, 1.58))
pocket1 = body.newObject("PartDesign::Pocket", "Pocket")
pocket1.Profile = sketch2
pocket1.Length = 1.6

# Sketch on YZ plane
sketch3 = body.newObject("Sketcher::SketchObject", "Sketch002")
sketch3.AttachmentSupport = (doc.getObject("YZ_Plane"), [""])
sketch3.MapMode = "FlatFace"
sketch3.AttachmentOffset = App.Placement(Vector(0, 0, -20.5), App.Rotation())
add_polygon(sketch3, [(9.5, -1.6), (-9.5, -1.6), (-9.5, 0), (9.5, 0)])  # lines 0-3
sketch3.addConstraint(Sketcher.Constraint("Horizontal", 0))
sketch3.addConstraint(Sketcher.Constraint("Vertical", 1))
sketch3.addConstraint(Sketcher.Constraint("Horizontal", 2))
sketch3.addConstraint(Sketcher.Constraint("Vertical", 3))
sketch3.addConstraint(Sketcher.Constraint("Symmetric", 1, 2, 2, 2, -1, 1))
sketch3.addConstraint(Sketcher.Constraint("DistanceX", 0, 2, 0, 1, 19.0))
sketch3.addConstraint(Sketcher.Constraint("DistanceY", 1, 1, 1, 2, 1.6))
pad2 = body.newObject("PartDesign::Pad", "Pad001")
pad2.Profile = sketch3
pad2.Length = 4
pad2.Reversed = True

# Sketch on XZ plane
sketch4 = body.newObject("Sketcher::SketchObject", "Sketch003")
sketch4.AttachmentSupport = (doc.getObject("XZ_Plane"), [""])
sketch4.MapMode = "FlatFace"
sketch4.AttachmentOffset = App.Placement(Vector(0, 0, 19), App.Rotation())
add_polygon(sketch4, [(-20.5, 0), (-20.5, -1.6), (-14.5, -1.6), (-14.5, 0)])  # lines 0-3
add_polygon(sketch4, [(21.5, 0), (21.5, -1.6), (27.5, -1.6), (27.5, 0)])  # lines 4-7
sketch4.addConstraint(Sketcher.Constraint("Vertical", 0))
sketch4.addConstraint(Sketcher.Constraint("Horizontal", 1))
sketch4.addConstraint(Sketcher.Constraint("Vertical", 2))
sketch4.addConstraint(Sketcher.Constraint("Horizontal", 3))
sketch4.addConstraint(Sketcher.Constraint("Vertical", 4))
sketch4.addConstraint(Sketcher.Constraint("Horizontal", 5))
sketch4.addConstraint(Sketcher.Constraint("Vertical", 6))
sketch4.addConstraint(Sketcher.Constraint("Horizontal", 7))
sketch4.addConstraint(Sketcher.Constraint("PointOnObject", 2, 2, -1))
sketch4.addConstraint(Sketcher.Constraint("PointOnObject", 6, 2, -1))
sketch4.addConstraint(Sketcher.Constraint("Horizontal", 1, 2, 4, 2))
sketch4.addConstraint(Sketcher.Constraint("Equal", 3, 5))
sketch4.addConstraint(Sketcher.Constraint("DistanceX", 1, 1, 1, 2, 6.0))
sketch4.addConstraint(Sketcher.Constraint("DistanceY", 0, 2, 0, 1, 1.6))
sketch4.addConstraint(Sketcher.Constraint("DistanceX", 1, 2, 4, 2, 36.0))
sketch4.addConstraint(Sketcher.Constraint("DistanceX", 0, 2, -1, 1, 20.5))
pad3 = body.newObject("PartDesign::Pad", "Pad002")
pad3.Profile = sketch4
pad3.Length = 3

# Sketch on XY plane
sketch5 = body.newObject("Sketcher::SketchObject", "Sketch004")
sketch5.AttachmentSupport = (doc.getObject("XY_Plane"), [""])
sketch5.MapMode = "FlatFace"
sketch5.addGeometry(Part.Circle(Vector(-19, -19, 0), Vector(0, 0, 1), 0.45), False)
sketch5.addConstraint(Sketcher.Constraint("Diameter", 0, 0.9))
sketch5.addConstraint(Sketcher.Constraint("DistanceX", 0, 3, -1, 1, 19.0))
sketch5.addConstraint(Sketcher.Constraint("DistanceY", 0, 3, -1, 1, 19.0))
pocket2 = body.newObject("PartDesign::Pocket", "Pocket001")
pocket2.Profile = sketch5
pocket2.Type = "UpToFirst"

# Sketch on XY plane
sketch6 = body.newObject("Sketcher::SketchObject", "Sketch005")
sketch6.AttachmentSupport = (doc.getObject("XY_Plane"), [""])
sketch6.MapMode = "FlatFace"
sketch6.addGeometry(Part.Circle(Vector(-16, -19, 0), Vector(0, 0, 1), 0.45), False)
sketch6.addConstraint(Sketcher.Constraint("Diameter", 0, 0.9))
sketch6.addConstraint(Sketcher.Constraint("DistanceX", 0, 3, -1, 1, 16.0))
sketch6.addConstraint(Sketcher.Constraint("DistanceY", 0, 3, -1, 1, 19.0))
pocket3 = body.newObject("PartDesign::Pocket", "Pocket002")
pocket3.Profile = sketch6
pocket3.Type = "UpToFirst"

# Sketch on XY plane
sketch7 = body.newObject("Sketcher::SketchObject", "Sketch006")
sketch7.AttachmentSupport = (doc.getObject("XY_Plane"), [""])
sketch7.MapMode = "FlatFace"
sketch7.addGeometry(Part.Circle(Vector(-17.5, -21, 0), Vector(0, 0, 1), 0.45), False)
sketch7.addConstraint(Sketcher.Constraint("Diameter", 0, 0.9))
sketch7.addConstraint(Sketcher.Constraint("DistanceY", 0, 3, -1, 1, 21.0))
sketch7.addConstraint(Sketcher.Constraint("DistanceX", 0, 3, -1, 1, 17.5))
pocket4 = body.newObject("PartDesign::Pocket", "Pocket003")
pocket4.Profile = sketch7
pocket4.Type = "UpToFirst"

# Sketch on XY plane
sketch8 = body.newObject("Sketcher::SketchObject", "Sketch007")
sketch8.AttachmentSupport = (doc.getObject("XY_Plane"), [""])
sketch8.MapMode = "FlatFace"
sketch8.addGeometry(Part.Circle(Vector(23, -19, 0), Vector(0, 0, 1), 0.45), False)
sketch8.addConstraint(Sketcher.Constraint("Diameter", 0, 0.9))
sketch8.addConstraint(Sketcher.Constraint("DistanceX", -1, 1, 0, 3, 23.0))
sketch8.addConstraint(Sketcher.Constraint("DistanceY", 0, 3, -1, 1, 19.0))
pocket5 = body.newObject("PartDesign::Pocket", "Pocket004")
pocket5.Profile = sketch8
pocket5.Type = "UpToFirst"

# Sketch on XY plane
sketch9 = body.newObject("Sketcher::SketchObject", "Sketch008")
sketch9.AttachmentSupport = (doc.getObject("XY_Plane"), [""])
sketch9.MapMode = "FlatFace"
sketch9.addGeometry(Part.Circle(Vector(26, -19, 0), Vector(0, 0, 1), 0.45), False)
sketch9.addConstraint(Sketcher.Constraint("Diameter", 0, 0.9))
sketch9.addConstraint(Sketcher.Constraint("DistanceX", -1, 1, 0, 3, 26.0))
sketch9.addConstraint(Sketcher.Constraint("DistanceY", 0, 3, -1, 1, 19.0))
pocket6 = body.newObject("PartDesign::Pocket", "Pocket005")
pocket6.Profile = sketch9
pocket6.Type = "UpToFirst"

# Sketch on XY plane
sketch10 = body.newObject("Sketcher::SketchObject", "Sketch009")
sketch10.AttachmentSupport = (doc.getObject("XY_Plane"), [""])
sketch10.MapMode = "FlatFace"
sketch10.addGeometry(Part.Circle(Vector(24.5, -21, 0), Vector(0, 0, 1), 0.45), False)
sketch10.addConstraint(Sketcher.Constraint("Diameter", 0, 0.9))
sketch10.addConstraint(Sketcher.Constraint("DistanceY", 0, 3, -1, 1, 21.0))
sketch10.addConstraint(Sketcher.Constraint("DistanceX", -1, 1, 0, 3, 24.5))
pocket7 = body.newObject("PartDesign::Pocket", "Pocket006")
pocket7.Profile = sketch10
pocket7.Type = "UpToFirst"

doc.recompute()
